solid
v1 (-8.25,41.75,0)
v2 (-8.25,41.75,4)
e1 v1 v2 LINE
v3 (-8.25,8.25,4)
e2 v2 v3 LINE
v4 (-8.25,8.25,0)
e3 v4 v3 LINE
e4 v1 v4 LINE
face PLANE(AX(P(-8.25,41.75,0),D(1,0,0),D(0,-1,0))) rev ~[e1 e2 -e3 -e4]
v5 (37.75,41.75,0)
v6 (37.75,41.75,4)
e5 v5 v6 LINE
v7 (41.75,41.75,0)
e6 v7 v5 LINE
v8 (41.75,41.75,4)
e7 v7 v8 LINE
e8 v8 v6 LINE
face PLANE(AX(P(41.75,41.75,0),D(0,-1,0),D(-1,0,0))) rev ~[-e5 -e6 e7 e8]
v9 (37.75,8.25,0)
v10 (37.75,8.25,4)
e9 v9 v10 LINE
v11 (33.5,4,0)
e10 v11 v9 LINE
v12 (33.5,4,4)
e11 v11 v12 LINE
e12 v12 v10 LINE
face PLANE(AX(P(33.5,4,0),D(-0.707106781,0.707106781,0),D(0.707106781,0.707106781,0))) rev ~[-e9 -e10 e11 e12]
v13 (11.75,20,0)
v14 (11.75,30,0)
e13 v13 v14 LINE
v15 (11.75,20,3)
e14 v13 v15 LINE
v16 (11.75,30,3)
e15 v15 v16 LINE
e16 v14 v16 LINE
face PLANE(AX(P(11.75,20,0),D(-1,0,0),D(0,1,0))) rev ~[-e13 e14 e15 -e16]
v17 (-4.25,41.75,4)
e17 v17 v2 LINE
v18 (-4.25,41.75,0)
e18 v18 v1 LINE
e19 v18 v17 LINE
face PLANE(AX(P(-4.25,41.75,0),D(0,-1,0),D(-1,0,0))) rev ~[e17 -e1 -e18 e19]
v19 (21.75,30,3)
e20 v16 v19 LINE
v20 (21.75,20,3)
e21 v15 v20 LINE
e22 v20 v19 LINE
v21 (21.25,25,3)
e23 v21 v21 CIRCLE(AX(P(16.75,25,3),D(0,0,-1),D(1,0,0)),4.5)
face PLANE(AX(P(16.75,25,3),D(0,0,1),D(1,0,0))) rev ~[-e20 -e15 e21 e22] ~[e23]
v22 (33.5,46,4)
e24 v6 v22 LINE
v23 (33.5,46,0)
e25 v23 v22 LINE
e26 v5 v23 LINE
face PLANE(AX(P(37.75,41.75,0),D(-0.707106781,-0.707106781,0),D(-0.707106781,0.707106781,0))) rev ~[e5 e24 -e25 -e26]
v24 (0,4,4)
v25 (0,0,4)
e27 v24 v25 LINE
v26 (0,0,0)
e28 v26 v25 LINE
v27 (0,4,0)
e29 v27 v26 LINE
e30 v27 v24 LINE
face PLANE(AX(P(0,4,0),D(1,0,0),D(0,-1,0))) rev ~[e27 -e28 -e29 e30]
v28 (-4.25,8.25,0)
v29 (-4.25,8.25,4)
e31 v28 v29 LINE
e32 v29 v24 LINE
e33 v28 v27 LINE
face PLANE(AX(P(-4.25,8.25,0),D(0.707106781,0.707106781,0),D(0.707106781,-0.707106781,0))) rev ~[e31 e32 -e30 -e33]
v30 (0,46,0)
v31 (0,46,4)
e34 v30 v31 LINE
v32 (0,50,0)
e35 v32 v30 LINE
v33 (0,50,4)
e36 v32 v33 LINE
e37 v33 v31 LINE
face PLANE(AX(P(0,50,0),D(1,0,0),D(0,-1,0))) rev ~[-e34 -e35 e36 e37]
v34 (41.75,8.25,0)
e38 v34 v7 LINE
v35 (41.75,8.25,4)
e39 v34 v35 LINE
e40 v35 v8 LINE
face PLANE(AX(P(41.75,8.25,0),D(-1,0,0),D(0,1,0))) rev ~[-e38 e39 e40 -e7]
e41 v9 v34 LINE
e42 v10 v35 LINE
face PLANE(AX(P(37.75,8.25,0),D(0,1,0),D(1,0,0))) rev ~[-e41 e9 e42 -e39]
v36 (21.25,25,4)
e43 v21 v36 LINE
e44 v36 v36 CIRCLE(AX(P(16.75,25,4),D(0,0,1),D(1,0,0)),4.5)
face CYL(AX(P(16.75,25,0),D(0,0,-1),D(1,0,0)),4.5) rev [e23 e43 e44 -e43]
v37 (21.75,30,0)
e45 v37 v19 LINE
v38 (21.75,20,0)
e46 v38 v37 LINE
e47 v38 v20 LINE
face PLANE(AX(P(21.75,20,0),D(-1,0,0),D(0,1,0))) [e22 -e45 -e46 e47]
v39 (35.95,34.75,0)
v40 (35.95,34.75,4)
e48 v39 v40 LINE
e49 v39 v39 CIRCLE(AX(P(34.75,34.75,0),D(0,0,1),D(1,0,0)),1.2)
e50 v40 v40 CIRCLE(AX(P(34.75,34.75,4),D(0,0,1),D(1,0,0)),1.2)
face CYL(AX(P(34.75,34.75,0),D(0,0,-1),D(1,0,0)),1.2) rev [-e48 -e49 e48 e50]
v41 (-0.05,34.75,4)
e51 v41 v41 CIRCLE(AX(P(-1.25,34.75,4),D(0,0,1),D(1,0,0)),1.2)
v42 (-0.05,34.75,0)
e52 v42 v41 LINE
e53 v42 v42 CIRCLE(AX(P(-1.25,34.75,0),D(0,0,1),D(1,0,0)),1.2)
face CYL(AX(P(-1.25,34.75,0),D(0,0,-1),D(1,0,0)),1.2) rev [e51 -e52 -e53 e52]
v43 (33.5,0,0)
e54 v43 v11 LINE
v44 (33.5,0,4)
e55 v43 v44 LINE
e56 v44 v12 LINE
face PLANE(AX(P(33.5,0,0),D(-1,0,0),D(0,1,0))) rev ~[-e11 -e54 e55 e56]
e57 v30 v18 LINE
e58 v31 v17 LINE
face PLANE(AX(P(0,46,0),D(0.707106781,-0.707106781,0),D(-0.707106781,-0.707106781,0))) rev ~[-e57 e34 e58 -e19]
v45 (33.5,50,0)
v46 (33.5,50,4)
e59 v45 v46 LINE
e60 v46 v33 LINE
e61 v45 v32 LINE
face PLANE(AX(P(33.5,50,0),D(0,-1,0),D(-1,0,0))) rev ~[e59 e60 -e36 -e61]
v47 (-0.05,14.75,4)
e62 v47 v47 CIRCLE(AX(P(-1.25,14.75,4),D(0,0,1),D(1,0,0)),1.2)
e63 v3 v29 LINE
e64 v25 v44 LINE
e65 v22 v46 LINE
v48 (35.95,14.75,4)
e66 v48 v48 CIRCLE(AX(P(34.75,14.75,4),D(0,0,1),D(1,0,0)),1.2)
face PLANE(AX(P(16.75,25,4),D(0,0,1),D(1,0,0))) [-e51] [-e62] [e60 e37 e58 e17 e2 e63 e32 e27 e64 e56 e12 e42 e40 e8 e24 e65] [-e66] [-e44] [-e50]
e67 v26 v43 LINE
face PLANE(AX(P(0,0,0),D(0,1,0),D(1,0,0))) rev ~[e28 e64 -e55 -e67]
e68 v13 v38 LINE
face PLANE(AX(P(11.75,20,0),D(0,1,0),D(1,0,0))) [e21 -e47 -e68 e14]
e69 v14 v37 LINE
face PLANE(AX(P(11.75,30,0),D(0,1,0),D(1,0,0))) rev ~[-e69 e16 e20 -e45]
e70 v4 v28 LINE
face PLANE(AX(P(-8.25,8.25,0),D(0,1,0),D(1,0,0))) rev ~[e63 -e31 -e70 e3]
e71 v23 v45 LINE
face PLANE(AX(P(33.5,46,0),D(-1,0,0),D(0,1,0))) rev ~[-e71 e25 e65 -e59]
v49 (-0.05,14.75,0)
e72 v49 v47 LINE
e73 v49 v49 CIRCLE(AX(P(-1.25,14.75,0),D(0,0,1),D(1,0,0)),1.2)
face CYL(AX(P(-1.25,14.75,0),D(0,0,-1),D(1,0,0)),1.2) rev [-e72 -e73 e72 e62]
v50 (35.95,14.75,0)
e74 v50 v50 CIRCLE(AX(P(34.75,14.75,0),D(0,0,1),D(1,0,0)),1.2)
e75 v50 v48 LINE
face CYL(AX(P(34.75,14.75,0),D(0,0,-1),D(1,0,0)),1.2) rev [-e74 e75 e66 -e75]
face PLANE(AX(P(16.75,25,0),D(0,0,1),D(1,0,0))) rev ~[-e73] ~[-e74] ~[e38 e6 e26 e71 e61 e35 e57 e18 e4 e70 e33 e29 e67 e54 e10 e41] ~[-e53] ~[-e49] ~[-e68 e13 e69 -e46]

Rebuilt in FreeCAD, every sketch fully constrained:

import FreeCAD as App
import Part
import Sketcher


def add_polygon(sketch, points):
    """Adds a closed chain of lines whose ends are joined by coincident constraints."""
    first, n = sketch.GeometryCount, len(points)
    for a, b in zip(points, points[1:] + points[:1]):
        sketch.addGeometry(Part.LineSegment(App.Vector(*a, 0), App.Vector(*b, 0)), False)
    for i in range(n):
        sketch.addConstraint(Sketcher.Constraint("Coincident", first + i, 2, first + (i + 1) % n, 1))

doc = App.newDocument("Part")
params = doc.addObject("Spreadsheet::Sheet", "Params")
for row, (alias, value) in enumerate([
    ("sketch1_diameter", "9 mm"),
    ("sketch1_diameter2", "2.4 mm"),
    ("sketch1_width", "4 mm"),
    ("sketch1_width2", "33.5 mm"),
    ("pad1_length", "4 mm"),
    ("sketch2_width", "10 mm"),
    ("pocket1_length", "3 mm"),
], start=1):
    params.set(f"A{row}", alias)
    params.set(f"B{row}", "=" + value)
    params.setAlias(f"B{row}", alias)

body = doc.addObject("PartDesign::Body", "Body")

sketch1 = body.newObject("Sketcher::SketchObject", "Sketch")
sketch1.AttachmentSupport = (doc.getObject("XY_Plane"), [""])
sketch1.MapMode = "FlatFace"
add_polygon(sketch1, [(0, 0), (33.5, 0), (33.5, 4), (37.75, 8.25), (41.75, 8.25), (41.75, 41.75), (37.75, 41.75), (33.5, 46), (33.5, 50), (0, 50), (0, 46), (-4.25, 41.75), (-8.25, 41.75), (-8.25, 8.25), (-4.25, 8.25), (0, 4)])
sketch1.addGeometry(Part.Circle(App.Vector(-1.25, 14.75, 0), App.Vector(0, 0, 1), 1.2), False)
sketch1.addGeometry(Part.Circle(App.Vector(34.75, 14.75, 0), App.Vector(0, 0, 1), 1.2), False)
sketch1.addGeometry(Part.Circle(App.Vector(16.75, 25, 0), App.Vector(0, 0, 1), 4.5), False)
sketch1.addGeometry(Part.Circle(App.Vector(-1.25, 34.75, 0), App.Vector(0, 0, 1), 1.2), False)
sketch1.addGeometry(Part.Circle(App.Vector(34.75, 34.75, 0), App.Vector(0, 0, 1), 1.2), False)
sketch1.addConstraint(Sketcher.Constraint("Horizontal", 0))
sketch1.addConstraint(Sketcher.Constraint("Vertical", 1))
sketch1.addConstraint(Sketcher.Constraint("Horizontal", 3))
sketch1.addConstraint(Sketcher.Constraint("Vertical", 4))
sketch1.addConstraint(Sketcher.Constraint("Horizontal", 5))
sketch1.addConstraint(Sketcher.Constraint("Vertical", 7))
sketch1.addConstraint(Sketcher.Constraint("Horizontal", 8))
sketch1.addConstraint(Sketcher.Constraint("Vertical", 9))
sketch1.addConstraint(Sketcher.Constraint("Horizontal", 11))
sketch1.addConstraint(Sketcher.Constraint("Vertical", 12))
sketch1.addConstraint(Sketcher.Constraint("Horizontal", 13))
sketch1.addConstraint(Sketcher.Constraint("Vertical", 15))
sketch1.addConstraint(Sketcher.Constraint("Coincident", 15, 2, -1, 1))
sketch1.addConstraint(Sketcher.Constraint("Equal", 16, 17))
sketch1.addConstraint(Sketcher.Constraint("Equal", 17, 19))
sketch1.addConstraint(Sketcher.Constraint("Equal", 19, 20))
sketch1.addConstraint(Sketcher.Constraint("PointOnObject", 8, 2, -2))
sketch1.addConstraint(Sketcher.Constraint("Perpendicular", 2, 6))
sketch1.addConstraint(Sketcher.Constraint("Perpendicular", 6, 10))
sketch1.addConstraint(Sketcher.Constraint("Perpendicular", 10, 14))
sketch1.addConstraint(Sketcher.Constraint("Horizontal", 16, 3, 17, 3))
sketch1.addConstraint(Sketcher.Constraint("Horizontal", 19, 3, 20, 3))
sketch1.addConstraint(Sketcher.Constraint("Horizontal", 6, 2, 9, 2))
sketch1.addConstraint(Sketcher.Constraint("Horizontal", 5, 2, 10, 2))
sketch1.addConstraint(Sketcher.Constraint("Horizontal", 3, 2, 12, 2))
sketch1.addConstraint(Sketcher.Constraint("Horizontal", 1, 2, 14, 2))
sketch1.addConstraint(Sketcher.Constraint("Vertical", 16, 3, 19, 3))
sketch1.addConstraint(Sketcher.Constraint("Vertical", 17, 3, 20, 3))
sketch1.addConstraint(Sketcher.Constraint("Vertical", 2, 2, 5, 2))
sketch1.addConstraint(Sketcher.Constraint("Vertical", 1, 2, 6, 2))
sketch1.addConstraint(Sketcher.Constraint("Vertical", 10, 2, 13, 2))
sketch1.addConstraint(Sketcher.Constraint("Equal", 5, 11))
sketch1.addConstraint(Sketcher.Constraint("Equal", 13, 1))
sketch1.addConstraint(Sketcher.Constraint("Equal", 8, 4))
sketch1.addConstraint(Sketcher.Constraint("Equal", 1, 7))
sketch1.addConstraint(Sketcher.Constraint("Diameter", 18, 9.0))
sketch1.addConstraint(Sketcher.Constraint("Diameter", 16, 2.4))
sketch1.addConstraint(Sketcher.Constraint("DistanceX", 3, 1, 3, 2, 4.0))
sketch1.addConstraint(Sketcher.Constraint("DistanceX", 0, 1, 0, 2, 33.5))
sketch1.addConstraint(Sketcher.Constraint("DistanceY", -1, 1, 18, 3, 25.0))
sketch1.addConstraint(Sketcher.Constraint("DistanceY", -1, 1, 6, 2, 46.0))
sketch1.addConstraint(Sketcher.Constraint("DistanceX", 16, 3, 17, 3, 36.0))
sketch1.addConstraint(Sketcher.Constraint("DistanceX", 16, 3, 18, 3, 18.0))
sketch1.addConstraint(Sketcher.Constraint("DistanceY", 16, 3, 19, 3, 20.0))
sketch1.addConstraint(Sketcher.Constraint("DistanceX", 17, 3, 2, 2, 3.0))
sketch1.addConstraint(Sketcher.Constraint("DistanceY", 20, 3, 4, 2, 7.0))
sketch1.setExpression("Constraints[51]", "Params.sketch1_diameter")
sketch1.setExpression("Constraints[52]", "Params.sketch1_diameter2")
sketch1.setExpression("Constraints[53]", "Params.sketch1_width")
sketch1.setExpression("Constraints[54]", "Params.sketch1_width2")
pad1 = body.newObject("PartDesign::Pad", "Pad")
pad1.Profile = sketch1
pad1.setExpression("Length", "Params.pad1_length")

sketch2 = body.newObject("Sketcher::SketchObject", "Sketch001")
sketch2.AttachmentSupport = (doc.getObject("XY_Plane"), [""])
sketch2.MapMode = "FlatFace"
add_polygon(sketch2, [(11.75, 30), (11.75, 20), (21.75, 20), (21.75, 30)])
sketch2.addConstraint(Sketcher.Constraint("Vertical", 0))
sketch2.addConstraint(Sketcher.Constraint("Horizontal", 1))
sketch2.addConstraint(Sketcher.Constraint("Vertical", 2))
sketch2.addConstraint(Sketcher.Constraint("Horizontal", 3))
sketch2.addConstraint(Sketcher.Constraint("Equal", 3, 0))
sketch2.addConstraint(Sketcher.Constraint("DistanceX", 1, 1, 1, 2, 10.0))
sketch2.addConstraint(Sketcher.Constraint("DistanceY", -1, 1, 0, 2, 20.0))
sketch2.addConstraint(Sketcher.Constraint("DistanceX", -1, 1, 0, 2, 11.75))
sketch2.setExpression("Constraints[9]", "Params.sketch2_width")
pocket1 = body.newObject("PartDesign::Pocket", "Pocket")
pocket1.Profile = sketch2
pocket1.setExpression("Length", "Params.pocket1_length")
pocket1.Reversed = True

doc.recompute()
